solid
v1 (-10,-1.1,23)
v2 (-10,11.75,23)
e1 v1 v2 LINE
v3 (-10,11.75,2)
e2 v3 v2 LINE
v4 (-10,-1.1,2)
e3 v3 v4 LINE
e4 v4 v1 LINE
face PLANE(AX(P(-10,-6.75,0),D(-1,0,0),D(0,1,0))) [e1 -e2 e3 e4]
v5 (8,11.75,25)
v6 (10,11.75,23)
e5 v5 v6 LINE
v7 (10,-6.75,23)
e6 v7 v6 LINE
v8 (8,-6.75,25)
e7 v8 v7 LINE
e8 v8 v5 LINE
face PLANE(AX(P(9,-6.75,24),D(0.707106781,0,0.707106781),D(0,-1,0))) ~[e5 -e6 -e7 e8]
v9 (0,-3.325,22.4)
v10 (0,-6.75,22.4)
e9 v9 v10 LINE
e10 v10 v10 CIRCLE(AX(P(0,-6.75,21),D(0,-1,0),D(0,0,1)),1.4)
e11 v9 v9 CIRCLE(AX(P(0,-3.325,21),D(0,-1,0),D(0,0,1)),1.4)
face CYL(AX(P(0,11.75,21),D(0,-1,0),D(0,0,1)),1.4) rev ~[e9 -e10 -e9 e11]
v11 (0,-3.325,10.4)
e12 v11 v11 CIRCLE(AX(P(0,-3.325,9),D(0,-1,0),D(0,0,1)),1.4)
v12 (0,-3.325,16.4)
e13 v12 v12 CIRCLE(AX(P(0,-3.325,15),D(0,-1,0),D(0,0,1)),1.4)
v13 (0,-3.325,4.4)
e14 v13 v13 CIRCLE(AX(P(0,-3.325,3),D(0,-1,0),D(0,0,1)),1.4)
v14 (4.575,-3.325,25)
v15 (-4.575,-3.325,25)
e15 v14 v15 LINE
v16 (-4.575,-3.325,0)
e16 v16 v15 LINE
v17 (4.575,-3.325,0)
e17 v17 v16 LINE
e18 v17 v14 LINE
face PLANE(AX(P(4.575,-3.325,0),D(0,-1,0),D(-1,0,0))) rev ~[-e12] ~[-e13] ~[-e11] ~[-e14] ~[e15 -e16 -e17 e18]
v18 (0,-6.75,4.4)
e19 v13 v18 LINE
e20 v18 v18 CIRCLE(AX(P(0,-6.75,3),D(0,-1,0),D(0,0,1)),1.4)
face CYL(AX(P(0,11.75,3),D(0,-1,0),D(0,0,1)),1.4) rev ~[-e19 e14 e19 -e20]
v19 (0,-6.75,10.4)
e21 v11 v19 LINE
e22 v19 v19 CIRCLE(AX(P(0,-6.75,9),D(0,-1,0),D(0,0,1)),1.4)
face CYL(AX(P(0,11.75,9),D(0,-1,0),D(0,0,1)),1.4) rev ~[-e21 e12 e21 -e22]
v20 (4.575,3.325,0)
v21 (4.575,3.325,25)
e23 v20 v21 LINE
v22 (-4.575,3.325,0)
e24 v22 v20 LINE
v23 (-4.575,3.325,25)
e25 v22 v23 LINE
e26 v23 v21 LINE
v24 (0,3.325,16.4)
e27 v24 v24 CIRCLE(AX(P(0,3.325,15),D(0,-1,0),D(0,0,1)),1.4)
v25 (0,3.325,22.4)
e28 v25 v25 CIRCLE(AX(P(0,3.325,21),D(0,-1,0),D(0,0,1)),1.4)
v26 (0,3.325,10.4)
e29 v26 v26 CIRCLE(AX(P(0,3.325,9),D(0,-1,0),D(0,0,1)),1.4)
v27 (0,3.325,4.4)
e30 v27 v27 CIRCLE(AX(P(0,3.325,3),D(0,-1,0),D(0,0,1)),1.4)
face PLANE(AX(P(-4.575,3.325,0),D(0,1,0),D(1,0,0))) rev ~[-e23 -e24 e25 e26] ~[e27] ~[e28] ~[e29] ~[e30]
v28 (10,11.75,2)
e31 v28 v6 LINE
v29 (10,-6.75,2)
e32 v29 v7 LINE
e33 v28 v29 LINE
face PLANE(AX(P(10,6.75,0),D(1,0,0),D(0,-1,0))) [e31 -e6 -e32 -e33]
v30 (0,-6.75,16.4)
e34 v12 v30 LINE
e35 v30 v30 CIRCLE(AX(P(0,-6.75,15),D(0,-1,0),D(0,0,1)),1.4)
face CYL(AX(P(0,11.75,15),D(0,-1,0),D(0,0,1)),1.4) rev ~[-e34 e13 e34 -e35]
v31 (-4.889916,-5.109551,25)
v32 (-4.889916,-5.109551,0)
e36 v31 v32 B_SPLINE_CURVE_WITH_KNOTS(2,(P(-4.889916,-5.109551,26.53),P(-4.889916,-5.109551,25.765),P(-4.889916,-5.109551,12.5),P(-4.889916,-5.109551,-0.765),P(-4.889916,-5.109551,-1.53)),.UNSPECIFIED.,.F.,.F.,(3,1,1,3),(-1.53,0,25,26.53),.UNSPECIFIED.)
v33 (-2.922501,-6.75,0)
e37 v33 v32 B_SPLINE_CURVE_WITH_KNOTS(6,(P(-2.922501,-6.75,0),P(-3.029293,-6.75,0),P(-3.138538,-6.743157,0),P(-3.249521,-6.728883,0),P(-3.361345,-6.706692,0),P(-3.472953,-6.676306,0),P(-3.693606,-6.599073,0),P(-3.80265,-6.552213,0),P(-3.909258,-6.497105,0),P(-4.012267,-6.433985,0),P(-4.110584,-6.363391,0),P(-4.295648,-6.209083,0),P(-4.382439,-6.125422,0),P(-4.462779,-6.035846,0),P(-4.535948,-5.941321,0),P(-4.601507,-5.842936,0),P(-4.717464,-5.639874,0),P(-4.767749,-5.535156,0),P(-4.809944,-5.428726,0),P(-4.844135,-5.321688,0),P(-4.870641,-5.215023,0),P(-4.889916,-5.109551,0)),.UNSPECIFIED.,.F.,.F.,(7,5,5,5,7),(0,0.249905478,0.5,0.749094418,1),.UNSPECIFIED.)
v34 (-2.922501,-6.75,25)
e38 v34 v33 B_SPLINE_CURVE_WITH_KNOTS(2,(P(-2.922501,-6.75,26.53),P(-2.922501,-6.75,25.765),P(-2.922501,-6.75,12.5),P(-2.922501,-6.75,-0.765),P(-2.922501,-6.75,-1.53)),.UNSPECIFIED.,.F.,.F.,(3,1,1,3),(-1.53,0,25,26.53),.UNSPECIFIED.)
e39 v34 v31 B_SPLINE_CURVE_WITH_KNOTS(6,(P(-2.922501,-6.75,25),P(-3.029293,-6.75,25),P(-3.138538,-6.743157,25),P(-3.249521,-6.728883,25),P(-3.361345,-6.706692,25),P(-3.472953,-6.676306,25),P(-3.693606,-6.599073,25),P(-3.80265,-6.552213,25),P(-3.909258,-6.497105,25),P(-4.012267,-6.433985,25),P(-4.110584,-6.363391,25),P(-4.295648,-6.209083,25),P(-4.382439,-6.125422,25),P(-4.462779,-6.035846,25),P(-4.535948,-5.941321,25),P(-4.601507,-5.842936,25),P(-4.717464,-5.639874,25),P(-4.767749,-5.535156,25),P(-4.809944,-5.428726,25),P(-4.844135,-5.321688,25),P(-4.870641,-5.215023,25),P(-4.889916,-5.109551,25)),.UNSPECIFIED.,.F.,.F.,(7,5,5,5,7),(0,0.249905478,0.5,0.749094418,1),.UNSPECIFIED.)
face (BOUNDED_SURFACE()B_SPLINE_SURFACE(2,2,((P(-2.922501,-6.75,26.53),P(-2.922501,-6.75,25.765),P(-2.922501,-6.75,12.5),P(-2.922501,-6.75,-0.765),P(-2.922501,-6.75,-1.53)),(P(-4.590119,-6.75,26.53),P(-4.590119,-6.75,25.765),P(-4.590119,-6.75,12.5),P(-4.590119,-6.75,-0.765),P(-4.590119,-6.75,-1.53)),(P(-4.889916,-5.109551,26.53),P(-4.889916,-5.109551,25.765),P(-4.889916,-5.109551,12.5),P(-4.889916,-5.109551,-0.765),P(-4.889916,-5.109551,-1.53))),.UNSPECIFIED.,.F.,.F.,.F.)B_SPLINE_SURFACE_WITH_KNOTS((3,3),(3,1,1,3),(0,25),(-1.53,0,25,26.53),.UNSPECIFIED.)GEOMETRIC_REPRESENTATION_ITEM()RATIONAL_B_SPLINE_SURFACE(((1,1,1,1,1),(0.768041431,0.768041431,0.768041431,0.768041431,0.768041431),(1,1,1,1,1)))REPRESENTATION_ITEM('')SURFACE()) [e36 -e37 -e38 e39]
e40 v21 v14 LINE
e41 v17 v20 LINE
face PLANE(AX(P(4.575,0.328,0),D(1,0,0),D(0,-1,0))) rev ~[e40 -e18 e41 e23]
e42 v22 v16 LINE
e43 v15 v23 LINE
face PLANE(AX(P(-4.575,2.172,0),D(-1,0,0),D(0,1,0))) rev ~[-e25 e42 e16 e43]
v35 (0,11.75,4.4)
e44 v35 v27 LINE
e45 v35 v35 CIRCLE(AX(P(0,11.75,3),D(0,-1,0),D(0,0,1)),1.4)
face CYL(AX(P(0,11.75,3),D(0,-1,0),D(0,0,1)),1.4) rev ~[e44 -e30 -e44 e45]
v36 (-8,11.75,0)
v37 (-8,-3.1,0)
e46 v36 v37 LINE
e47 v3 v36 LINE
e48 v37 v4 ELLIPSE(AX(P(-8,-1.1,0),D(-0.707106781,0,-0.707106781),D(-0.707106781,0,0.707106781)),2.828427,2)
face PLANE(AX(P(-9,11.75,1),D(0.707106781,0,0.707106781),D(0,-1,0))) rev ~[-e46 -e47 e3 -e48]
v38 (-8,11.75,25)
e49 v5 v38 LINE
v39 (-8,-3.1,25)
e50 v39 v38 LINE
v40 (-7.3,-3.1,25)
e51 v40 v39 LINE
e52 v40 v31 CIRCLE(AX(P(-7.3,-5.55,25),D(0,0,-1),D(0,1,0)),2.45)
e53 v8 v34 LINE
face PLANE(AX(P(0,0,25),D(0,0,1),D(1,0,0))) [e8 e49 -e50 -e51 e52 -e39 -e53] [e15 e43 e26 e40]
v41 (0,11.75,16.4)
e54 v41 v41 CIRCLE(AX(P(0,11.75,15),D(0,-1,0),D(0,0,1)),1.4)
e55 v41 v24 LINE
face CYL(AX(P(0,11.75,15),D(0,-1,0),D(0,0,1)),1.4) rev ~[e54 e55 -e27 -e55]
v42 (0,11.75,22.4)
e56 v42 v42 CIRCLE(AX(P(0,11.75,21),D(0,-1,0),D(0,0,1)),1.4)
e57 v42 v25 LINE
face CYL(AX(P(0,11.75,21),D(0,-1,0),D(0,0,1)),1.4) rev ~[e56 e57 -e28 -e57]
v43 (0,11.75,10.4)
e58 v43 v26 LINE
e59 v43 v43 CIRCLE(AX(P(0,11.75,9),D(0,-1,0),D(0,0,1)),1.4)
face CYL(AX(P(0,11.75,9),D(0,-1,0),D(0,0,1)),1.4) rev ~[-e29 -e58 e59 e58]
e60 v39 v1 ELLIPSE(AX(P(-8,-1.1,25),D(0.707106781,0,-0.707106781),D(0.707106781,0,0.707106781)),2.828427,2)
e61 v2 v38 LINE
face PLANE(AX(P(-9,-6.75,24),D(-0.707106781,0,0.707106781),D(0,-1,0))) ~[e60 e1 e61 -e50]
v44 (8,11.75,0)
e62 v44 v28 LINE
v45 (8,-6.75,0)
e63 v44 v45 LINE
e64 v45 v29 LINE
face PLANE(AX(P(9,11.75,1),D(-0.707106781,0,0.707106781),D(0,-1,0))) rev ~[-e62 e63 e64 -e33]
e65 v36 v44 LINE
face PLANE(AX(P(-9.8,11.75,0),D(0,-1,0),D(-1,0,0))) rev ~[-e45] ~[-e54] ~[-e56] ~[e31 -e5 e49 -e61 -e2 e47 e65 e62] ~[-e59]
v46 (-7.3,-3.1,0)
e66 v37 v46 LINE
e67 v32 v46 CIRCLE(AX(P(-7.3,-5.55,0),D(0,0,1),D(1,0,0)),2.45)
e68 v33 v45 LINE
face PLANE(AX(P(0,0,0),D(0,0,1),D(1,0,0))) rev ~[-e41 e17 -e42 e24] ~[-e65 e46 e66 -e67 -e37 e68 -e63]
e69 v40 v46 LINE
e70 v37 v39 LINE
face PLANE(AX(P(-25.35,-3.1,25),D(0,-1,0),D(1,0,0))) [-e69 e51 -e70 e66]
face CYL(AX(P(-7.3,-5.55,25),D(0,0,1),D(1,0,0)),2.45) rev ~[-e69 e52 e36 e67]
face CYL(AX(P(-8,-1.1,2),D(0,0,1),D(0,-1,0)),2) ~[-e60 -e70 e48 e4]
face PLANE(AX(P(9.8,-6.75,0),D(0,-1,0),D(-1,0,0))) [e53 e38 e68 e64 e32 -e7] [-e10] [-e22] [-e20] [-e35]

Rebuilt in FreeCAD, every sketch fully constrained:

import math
import FreeCAD as App
import Part
import Sketcher

V = App.Vector
Q = App.Units.Quantity


def edges_at(feature, points):
    """Names of the edges that pass closest to the given points."""
    edges = feature.Shape.Edges
    near = lambda p: min(range(len(edges)), key=lambda i: edges[i].distToShape(Part.Vertex(*p))[0])
    return sorted({f"Edge{near(p) + 1}" for p in points})

doc = App.newDocument("Part")
body = doc.addObject("PartDesign::Body", "Body")

sketch1 = doc.addObject("Sketcher::SketchObject", "Sketch")
body.addObject(sketch1)
sketch1.AttachmentSupport = (doc.XY_Plane, [""])
sketch1.MapMode = "FlatFace"
sketch1.addGeometry(Part.LineSegment(V(-10, -7, 0), V(10, -7, 0)), False)
sketch1.addGeometry(Part.LineSegment(V(10, -7, 0), V(10, 12, 0)), False)
sketch1.addGeometry(Part.LineSegment(V(10, 12, 0), V(-10, 12, 0)), False)
sketch1.addGeometry(Part.LineSegment(V(-10, 12, 0), V(-10, -7, 0)), False)
sketch1.addGeometry(Part.LineSegment(V(5, -3, 0), V(-5, -3, 0)), False)
sketch1.addGeometry(Part.LineSegment(V(-5, -3, 0), V(-5, 3, 0)), False)
sketch1.addGeometry(Part.LineSegment(V(-5, 3, 0), V(5, 3, 0)), False)
sketch1.addGeometry(Part.LineSegment(V(5, 3, 0), V(5, -3, 0)), False)
sketch1.addConstraint(Sketcher.Constraint("Coincident", 0, 2, 1, 1))
sketch1.addConstraint(Sketcher.Constraint("Coincident", 1, 2, 2, 1))
sketch1.addConstraint(Sketcher.Constraint("Coincident", 2, 2, 3, 1))
sketch1.addConstraint(Sketcher.Constraint("Coincident", 3, 2, 0, 1))
sketch1.addConstraint(Sketcher.Constraint("Coincident", 4, 2, 5, 1))
sketch1.addConstraint(Sketcher.Constraint("Coincident", 5, 2, 6, 1))
sketch1.addConstraint(Sketcher.Constraint("Coincident", 6, 2, 7, 1))
sketch1.addConstraint(Sketcher.Constraint("Coincident", 7, 2, 4, 1))
sketch1.addConstraint(Sketcher.Constraint("Horizontal", 0))
sketch1.addConstraint(Sketcher.Constraint("Vertical", 1))
sketch1.addConstraint(Sketcher.Constraint("Horizontal", 2))
sketch1.addConstraint(Sketcher.Constraint("Vertical", 3))
sketch1.addConstraint(Sketcher.Constraint("Horizontal", 4))
sketch1.addConstraint(Sketcher.Constraint("Vertical", 5))
sketch1.addConstraint(Sketcher.Constraint("Horizontal", 6))
sketch1.addConstraint(Sketcher.Constraint("Vertical", 7))
sketch1.addConstraint(Sketcher.Constraint("Symmetric", 4, 2, 6, 2, -1, 1))
sketch1.addConstraint(Sketcher.Constraint("DistanceX", 0, 1, 0, 2, Q("20 mm")))
sketch1.addConstraint(Sketcher.Constraint("DistanceY", 1, 1, 1, 2, Q("18.5 mm")))
sketch1.addConstraint(Sketcher.Constraint("DistanceX", -1, 1, 0, 2, Q("10 mm")))
sketch1.addConstraint(Sketcher.Constraint("DistanceX", 4, 2, 4, 1, Q("9.15 mm")))
sketch1.addConstraint(Sketcher.Constraint("DistanceY", 5, 1, 5, 2, Q("6.65 mm")))
sketch1.addConstraint(Sketcher.Constraint("DistanceY", 0, 2, -1, 1, Q("6.75 mm")))
pad1 = doc.addObject("PartDesign::Pad", "Pad")
body.addObject(pad1)
pad1.Profile = sketch1
pad1.Length = 25

sketch2 = doc.addObject("Sketcher::SketchObject", "Sketch001")
body.addObject(sketch2)
sketch2.AttachmentSupport = (doc.XZ_Plane, [""])
sketch2.MapMode = "FlatFace"
sketch2.AttachmentOffset = App.Placement(V(0, 0, -11.75), App.Rotation())
sketch2.addGeometry(Part.Circle(V(0, 3, 0), V(0, 0, 1), 1.4), False)
sketch2.addConstraint(Sketcher.Constraint("PointOnObject", 0, 3, -2))
sketch2.addConstraint(Sketcher.Constraint("Diameter", 0, Q("2.8 mm")))
sketch2.addConstraint(Sketcher.Constraint("DistanceY", -1, 1, 0, 3, Q("3 mm")))
doc.recompute()
hole = doc.addObject("PartDesign::Hole", "Hole")
body.addObject(hole)
hole.Profile = sketch2
hole.ThreadType = "None"
hole.Diameter = 2.8
hole.DepthType = "ThroughAll"
hole.Reversed = True
doc.recompute()

linearpattern = doc.addObject("PartDesign::LinearPattern", "LinearPattern")
body.addObject(linearpattern)
linearpattern.Originals = [hole]
linearpattern.Direction = (doc.Z_Axis, [""])
linearpattern.Mode = "offset"
linearpattern.Offset = 6
linearpattern.Occurrences = 4
body.Tip = linearpattern
doc.recompute()

chamfer = doc.addObject("PartDesign::Chamfer", "Chamfer")
body.addObject(chamfer)
chamfer.Base = (linearpattern, edges_at(linearpattern, [
    (-10, 2.5, 0),
    (-10, 2.5, 25),
    (10, 2.5, 0),
    (10, 2.5, 25),
]))
chamfer.Size = 2

sketch3 = doc.addObject("Sketcher::SketchObject", "Sketch002")
body.addObject(sketch3)
sketch3.AttachmentSupport = (doc.XY_Plane, [""])
sketch3.MapMode = "FlatFace"
sketch3.AttachmentOffset = App.Placement(V(0, 0, 25), App.Rotation())
sketch3.addGeometry(Part.ArcOfCircle(Part.Circle(V(-7.3, -5.5, 0), V(0, 0, 1), 2.5), math.radians(0), math.radians(90)), False)
sketch3.addGeometry(Part.LineSegment(V(-7.3, -3.1, 0), V(-25.4, -3.1, 0)), False)
sketch3.addGeometry(Part.LineSegment(V(-25.4, -3.1, 0), V(-25.4, -23.6, 0)), False)
sketch3.addGeometry(Part.LineSegment(V(-25.4, -23.6, 0), V(-4.8, -23.6, 0)), False)
sketch3.addGeometry(Part.LineSegment(V(-4.8, -23.6, 0), V(-4.8, -5.5, 0)), False)
sketch3.addGeometry(Part.Circle(V(-15.1, -13.3, 0), V(0, 0, 1), 1.4), False)
sketch3.addConstraint(Sketcher.Constraint("Tangent", 0, 2, 1, 1))
sketch3.addConstraint(Sketcher.Constraint("Coincident", 1, 2, 2, 1))
sketch3.addConstraint(Sketcher.Constraint("Coincident", 2, 2, 3, 1))
sketch3.addConstraint(Sketcher.Constraint("Coincident", 3, 2, 4, 1))
sketch3.addConstraint(Sketcher.Constraint("Tangent", 4, 2, 0, 1))
sketch3.addConstraint(Sketcher.Constraint("Horizontal", 1))
sketch3.addConstraint(Sketcher.Constraint("Vertical", 2))
sketch3.addConstraint(Sketcher.Constraint("Horizontal", 3))
sketch3.addConstraint(Sketcher.Constraint("Vertical", 4))
sketch3.addConstraint(Sketcher.Constraint("Equal", 3, 2))
sketch3.addConstraint(Sketcher.Constraint("Radius", 0, Q("2.45 mm")))
sketch3.addConstraint(Sketcher.Constraint("DistanceX", 3, 1, 3, 2, Q("20.5 mm")))
sketch3.addConstraint(Sketcher.Constraint("Diameter", 5, Q("2.8448 mm")))
sketch3.addConstraint(Sketcher.Constraint("DistanceX", 0, 3, -1, 1, Q("7.3 mm")))
sketch3.addConstraint(Sketcher.Constraint("DistanceX", 5, 3, -1, 1, Q("15.1 mm")))
sketch3.addConstraint(Sketcher.Constraint("DistanceY", 0, 2, -1, 1, Q("3.1 mm")))
sketch3.addConstraint(Sketcher.Constraint("DistanceY", 5, 3, 0, 3, Q("7.8 mm")))
pocket1 = doc.addObject("PartDesign::Pocket", "Pocket")
body.addObject(pocket1)
pocket1.Profile = sketch3
pocket1.Length = 25
doc.recompute()

fillet = doc.addObject("PartDesign::Fillet", "Fillet")
body.addObject(fillet)
fillet.Base = (pocket1, edges_at(pocket1, [(-4.85, -6.75, 12.5), (-10, -3.1, 12.5)]))
fillet.Radius = 2

doc.recompute()
